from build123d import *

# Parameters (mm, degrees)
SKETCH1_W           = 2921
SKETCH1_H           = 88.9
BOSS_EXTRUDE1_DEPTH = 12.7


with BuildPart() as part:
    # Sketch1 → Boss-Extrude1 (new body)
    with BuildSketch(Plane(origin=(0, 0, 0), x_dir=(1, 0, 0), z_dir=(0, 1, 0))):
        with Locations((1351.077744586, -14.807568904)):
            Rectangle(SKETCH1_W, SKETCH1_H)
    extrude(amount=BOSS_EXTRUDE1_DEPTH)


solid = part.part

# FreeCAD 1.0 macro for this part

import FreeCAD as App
import Part
import Sketcher
from FreeCAD import Vector
Q = App.Units.Quantity


def add_polygon(sketch, points):
    """Adds a closed chain of lines whose ends are joined by coincident constraints."""
    first, n = sketch.GeometryCount, len(points)
    for a, b in zip(points, points[1:] + points[:1]):
        sketch.addGeometry(Part.LineSegment(App.Vector(*a, 0), App.Vector(*b, 0)), False)
    for i in range(n):
        sketch.addConstraint(Sketcher.Constraint("Coincident", first + i, 2, first + (i + 1) % n, 1))

doc = App.newDocument("Part")
body = doc.addObject("PartDesign::Body", "Body")

sketch1 = doc.addObject("Sketcher::SketchObject", "Sketch")
body.addObject(sketch1)
sketch1.AttachmentSupport = (doc.XZ_Plane, [""])
sketch1.MapMode = "FlatFace"
add_polygon(sketch1, [(-109, -30), (-109, 59), (2812, 59), (2812, -30)])
sketch1.addConstraint([
    Sketcher.Constraint("Vertical", 0),
    Sketcher.Constraint("Horizontal", 1),
    Sketcher.Constraint("Vertical", 2),
    Sketcher.Constraint("Horizontal", 3),
    Sketcher.Constraint("DistanceX", 1, 1, 1, 2, Q("115 in")),
    Sketcher.Constraint("DistanceY", 0, 1, 0, 2, Q("3.5 in")),
    Sketcher.Constraint("DistanceY", -1, 1, 0, 2, 59.257569),
    Sketcher.Constraint("DistanceX", 0, 2, -1, 1, 109.422255),
])
pad1 = doc.addObject("PartDesign::Pad", "Pad")
body.addObject(pad1)
pad1.Profile = sketch1
pad1.Length = Q("0.5 in")
pad1.Reversed = True

doc.recompute()
